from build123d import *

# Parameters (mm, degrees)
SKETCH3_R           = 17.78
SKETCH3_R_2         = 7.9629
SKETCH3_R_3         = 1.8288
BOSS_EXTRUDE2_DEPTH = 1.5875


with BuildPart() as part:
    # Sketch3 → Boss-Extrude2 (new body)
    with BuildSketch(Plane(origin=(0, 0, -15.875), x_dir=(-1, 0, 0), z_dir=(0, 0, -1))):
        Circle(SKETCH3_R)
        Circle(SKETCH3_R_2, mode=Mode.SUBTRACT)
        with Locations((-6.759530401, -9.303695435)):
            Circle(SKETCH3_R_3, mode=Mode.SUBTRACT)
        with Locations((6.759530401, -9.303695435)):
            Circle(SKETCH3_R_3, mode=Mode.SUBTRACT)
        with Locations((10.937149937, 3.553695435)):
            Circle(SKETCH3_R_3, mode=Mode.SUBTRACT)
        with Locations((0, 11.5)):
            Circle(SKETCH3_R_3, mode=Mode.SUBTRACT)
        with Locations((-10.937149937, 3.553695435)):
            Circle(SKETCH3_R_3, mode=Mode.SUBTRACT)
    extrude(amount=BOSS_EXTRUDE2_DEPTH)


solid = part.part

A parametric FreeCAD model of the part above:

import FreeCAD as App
import Part
import Sketcher

V = App.Vector
Q = App.Units.Quantity

doc = App.newDocument("Part")
body = doc.addObject("PartDesign::Body", "Body")

sketch1 = body.newObject("Sketcher::SketchObject", "Sketch")
sketch1.AttachmentSupport = (doc.getObject("XY_Plane"), [""])
sketch1.MapMode = "FlatFace"
sketch1.AttachmentOffset = App.Placement(V(0, 0, -0.625 * 25.4), App.Rotation())
sketch1.addGeometry([
    Part.Circle(V(0, 0, 0), V(0, 0, 1), 17.78),
    Part.Circle(V(6.75953, -9.303695, 0), V(0, 0, 1), 1.8288),
    Part.Circle(V(-6.75953, -9.303695, 0), V(0, 0, 1), 1.8288),
    Part.Circle(V(0, 0, 0), V(0, 0, 1), 7.9629),
    Part.Circle(V(10.93715, 3.553695, 0), V(0, 0, 1), 1.8288),
    Part.Circle(V(-10.93715, 3.553695, 0), V(0, 0, 1), 1.8288),
    Part.Circle(V(0, 11.5, 0), V(0, 0, 1), 1.8288),
], False)
sketch1.addConstraint([
    Sketcher.Constraint("Coincident", 0, 3, -1, 1),
    Sketcher.Constraint("Coincident", 3, 3, -1, 1),
    Sketcher.Constraint("Equal", 1, 2),
    Sketcher.Constraint("Equal", 2, 4),
    Sketcher.Constraint("Equal", 4, 5),
    Sketcher.Constraint("Equal", 5, 6),
    Sketcher.Constraint("Symmetric", 1, 3, 2, 3, -2),
    Sketcher.Constraint("Symmetric", 4, 3, 5, 3, -2),
    Sketcher.Constraint("PointOnObject", 6, 3, -2),
    Sketcher.Constraint("Diameter", 0, Q("1.4 in")),
    Sketcher.Constraint("Diameter", 1, Q("0.144 in")),
    Sketcher.Constraint("Diameter", 3, Q("0.627 in")),
    Sketcher.Constraint("DistanceY", -1, 1, 6, 3, Q("11.5 mm")),
    Sketcher.Constraint("DistanceX", 5, 3, 4, 3, Q("21.8743 mm")),
    Sketcher.Constraint("DistanceX", -1, 1, 1, 3, Q("6.75953 mm")),
    Sketcher.Constraint("DistanceY", 1, 3, 4, 3, Q("12.857391 mm")),
    Sketcher.Constraint("DistanceY", 1, 3, -1, 1, Q("9.303695 mm")),
])
pad1 = body.newObject("PartDesign::Pad", "Pad")
pad1.Profile = sketch1
pad1.Length = Q("0.0625 in")
pad1.Reversed = True

doc.recompute()
